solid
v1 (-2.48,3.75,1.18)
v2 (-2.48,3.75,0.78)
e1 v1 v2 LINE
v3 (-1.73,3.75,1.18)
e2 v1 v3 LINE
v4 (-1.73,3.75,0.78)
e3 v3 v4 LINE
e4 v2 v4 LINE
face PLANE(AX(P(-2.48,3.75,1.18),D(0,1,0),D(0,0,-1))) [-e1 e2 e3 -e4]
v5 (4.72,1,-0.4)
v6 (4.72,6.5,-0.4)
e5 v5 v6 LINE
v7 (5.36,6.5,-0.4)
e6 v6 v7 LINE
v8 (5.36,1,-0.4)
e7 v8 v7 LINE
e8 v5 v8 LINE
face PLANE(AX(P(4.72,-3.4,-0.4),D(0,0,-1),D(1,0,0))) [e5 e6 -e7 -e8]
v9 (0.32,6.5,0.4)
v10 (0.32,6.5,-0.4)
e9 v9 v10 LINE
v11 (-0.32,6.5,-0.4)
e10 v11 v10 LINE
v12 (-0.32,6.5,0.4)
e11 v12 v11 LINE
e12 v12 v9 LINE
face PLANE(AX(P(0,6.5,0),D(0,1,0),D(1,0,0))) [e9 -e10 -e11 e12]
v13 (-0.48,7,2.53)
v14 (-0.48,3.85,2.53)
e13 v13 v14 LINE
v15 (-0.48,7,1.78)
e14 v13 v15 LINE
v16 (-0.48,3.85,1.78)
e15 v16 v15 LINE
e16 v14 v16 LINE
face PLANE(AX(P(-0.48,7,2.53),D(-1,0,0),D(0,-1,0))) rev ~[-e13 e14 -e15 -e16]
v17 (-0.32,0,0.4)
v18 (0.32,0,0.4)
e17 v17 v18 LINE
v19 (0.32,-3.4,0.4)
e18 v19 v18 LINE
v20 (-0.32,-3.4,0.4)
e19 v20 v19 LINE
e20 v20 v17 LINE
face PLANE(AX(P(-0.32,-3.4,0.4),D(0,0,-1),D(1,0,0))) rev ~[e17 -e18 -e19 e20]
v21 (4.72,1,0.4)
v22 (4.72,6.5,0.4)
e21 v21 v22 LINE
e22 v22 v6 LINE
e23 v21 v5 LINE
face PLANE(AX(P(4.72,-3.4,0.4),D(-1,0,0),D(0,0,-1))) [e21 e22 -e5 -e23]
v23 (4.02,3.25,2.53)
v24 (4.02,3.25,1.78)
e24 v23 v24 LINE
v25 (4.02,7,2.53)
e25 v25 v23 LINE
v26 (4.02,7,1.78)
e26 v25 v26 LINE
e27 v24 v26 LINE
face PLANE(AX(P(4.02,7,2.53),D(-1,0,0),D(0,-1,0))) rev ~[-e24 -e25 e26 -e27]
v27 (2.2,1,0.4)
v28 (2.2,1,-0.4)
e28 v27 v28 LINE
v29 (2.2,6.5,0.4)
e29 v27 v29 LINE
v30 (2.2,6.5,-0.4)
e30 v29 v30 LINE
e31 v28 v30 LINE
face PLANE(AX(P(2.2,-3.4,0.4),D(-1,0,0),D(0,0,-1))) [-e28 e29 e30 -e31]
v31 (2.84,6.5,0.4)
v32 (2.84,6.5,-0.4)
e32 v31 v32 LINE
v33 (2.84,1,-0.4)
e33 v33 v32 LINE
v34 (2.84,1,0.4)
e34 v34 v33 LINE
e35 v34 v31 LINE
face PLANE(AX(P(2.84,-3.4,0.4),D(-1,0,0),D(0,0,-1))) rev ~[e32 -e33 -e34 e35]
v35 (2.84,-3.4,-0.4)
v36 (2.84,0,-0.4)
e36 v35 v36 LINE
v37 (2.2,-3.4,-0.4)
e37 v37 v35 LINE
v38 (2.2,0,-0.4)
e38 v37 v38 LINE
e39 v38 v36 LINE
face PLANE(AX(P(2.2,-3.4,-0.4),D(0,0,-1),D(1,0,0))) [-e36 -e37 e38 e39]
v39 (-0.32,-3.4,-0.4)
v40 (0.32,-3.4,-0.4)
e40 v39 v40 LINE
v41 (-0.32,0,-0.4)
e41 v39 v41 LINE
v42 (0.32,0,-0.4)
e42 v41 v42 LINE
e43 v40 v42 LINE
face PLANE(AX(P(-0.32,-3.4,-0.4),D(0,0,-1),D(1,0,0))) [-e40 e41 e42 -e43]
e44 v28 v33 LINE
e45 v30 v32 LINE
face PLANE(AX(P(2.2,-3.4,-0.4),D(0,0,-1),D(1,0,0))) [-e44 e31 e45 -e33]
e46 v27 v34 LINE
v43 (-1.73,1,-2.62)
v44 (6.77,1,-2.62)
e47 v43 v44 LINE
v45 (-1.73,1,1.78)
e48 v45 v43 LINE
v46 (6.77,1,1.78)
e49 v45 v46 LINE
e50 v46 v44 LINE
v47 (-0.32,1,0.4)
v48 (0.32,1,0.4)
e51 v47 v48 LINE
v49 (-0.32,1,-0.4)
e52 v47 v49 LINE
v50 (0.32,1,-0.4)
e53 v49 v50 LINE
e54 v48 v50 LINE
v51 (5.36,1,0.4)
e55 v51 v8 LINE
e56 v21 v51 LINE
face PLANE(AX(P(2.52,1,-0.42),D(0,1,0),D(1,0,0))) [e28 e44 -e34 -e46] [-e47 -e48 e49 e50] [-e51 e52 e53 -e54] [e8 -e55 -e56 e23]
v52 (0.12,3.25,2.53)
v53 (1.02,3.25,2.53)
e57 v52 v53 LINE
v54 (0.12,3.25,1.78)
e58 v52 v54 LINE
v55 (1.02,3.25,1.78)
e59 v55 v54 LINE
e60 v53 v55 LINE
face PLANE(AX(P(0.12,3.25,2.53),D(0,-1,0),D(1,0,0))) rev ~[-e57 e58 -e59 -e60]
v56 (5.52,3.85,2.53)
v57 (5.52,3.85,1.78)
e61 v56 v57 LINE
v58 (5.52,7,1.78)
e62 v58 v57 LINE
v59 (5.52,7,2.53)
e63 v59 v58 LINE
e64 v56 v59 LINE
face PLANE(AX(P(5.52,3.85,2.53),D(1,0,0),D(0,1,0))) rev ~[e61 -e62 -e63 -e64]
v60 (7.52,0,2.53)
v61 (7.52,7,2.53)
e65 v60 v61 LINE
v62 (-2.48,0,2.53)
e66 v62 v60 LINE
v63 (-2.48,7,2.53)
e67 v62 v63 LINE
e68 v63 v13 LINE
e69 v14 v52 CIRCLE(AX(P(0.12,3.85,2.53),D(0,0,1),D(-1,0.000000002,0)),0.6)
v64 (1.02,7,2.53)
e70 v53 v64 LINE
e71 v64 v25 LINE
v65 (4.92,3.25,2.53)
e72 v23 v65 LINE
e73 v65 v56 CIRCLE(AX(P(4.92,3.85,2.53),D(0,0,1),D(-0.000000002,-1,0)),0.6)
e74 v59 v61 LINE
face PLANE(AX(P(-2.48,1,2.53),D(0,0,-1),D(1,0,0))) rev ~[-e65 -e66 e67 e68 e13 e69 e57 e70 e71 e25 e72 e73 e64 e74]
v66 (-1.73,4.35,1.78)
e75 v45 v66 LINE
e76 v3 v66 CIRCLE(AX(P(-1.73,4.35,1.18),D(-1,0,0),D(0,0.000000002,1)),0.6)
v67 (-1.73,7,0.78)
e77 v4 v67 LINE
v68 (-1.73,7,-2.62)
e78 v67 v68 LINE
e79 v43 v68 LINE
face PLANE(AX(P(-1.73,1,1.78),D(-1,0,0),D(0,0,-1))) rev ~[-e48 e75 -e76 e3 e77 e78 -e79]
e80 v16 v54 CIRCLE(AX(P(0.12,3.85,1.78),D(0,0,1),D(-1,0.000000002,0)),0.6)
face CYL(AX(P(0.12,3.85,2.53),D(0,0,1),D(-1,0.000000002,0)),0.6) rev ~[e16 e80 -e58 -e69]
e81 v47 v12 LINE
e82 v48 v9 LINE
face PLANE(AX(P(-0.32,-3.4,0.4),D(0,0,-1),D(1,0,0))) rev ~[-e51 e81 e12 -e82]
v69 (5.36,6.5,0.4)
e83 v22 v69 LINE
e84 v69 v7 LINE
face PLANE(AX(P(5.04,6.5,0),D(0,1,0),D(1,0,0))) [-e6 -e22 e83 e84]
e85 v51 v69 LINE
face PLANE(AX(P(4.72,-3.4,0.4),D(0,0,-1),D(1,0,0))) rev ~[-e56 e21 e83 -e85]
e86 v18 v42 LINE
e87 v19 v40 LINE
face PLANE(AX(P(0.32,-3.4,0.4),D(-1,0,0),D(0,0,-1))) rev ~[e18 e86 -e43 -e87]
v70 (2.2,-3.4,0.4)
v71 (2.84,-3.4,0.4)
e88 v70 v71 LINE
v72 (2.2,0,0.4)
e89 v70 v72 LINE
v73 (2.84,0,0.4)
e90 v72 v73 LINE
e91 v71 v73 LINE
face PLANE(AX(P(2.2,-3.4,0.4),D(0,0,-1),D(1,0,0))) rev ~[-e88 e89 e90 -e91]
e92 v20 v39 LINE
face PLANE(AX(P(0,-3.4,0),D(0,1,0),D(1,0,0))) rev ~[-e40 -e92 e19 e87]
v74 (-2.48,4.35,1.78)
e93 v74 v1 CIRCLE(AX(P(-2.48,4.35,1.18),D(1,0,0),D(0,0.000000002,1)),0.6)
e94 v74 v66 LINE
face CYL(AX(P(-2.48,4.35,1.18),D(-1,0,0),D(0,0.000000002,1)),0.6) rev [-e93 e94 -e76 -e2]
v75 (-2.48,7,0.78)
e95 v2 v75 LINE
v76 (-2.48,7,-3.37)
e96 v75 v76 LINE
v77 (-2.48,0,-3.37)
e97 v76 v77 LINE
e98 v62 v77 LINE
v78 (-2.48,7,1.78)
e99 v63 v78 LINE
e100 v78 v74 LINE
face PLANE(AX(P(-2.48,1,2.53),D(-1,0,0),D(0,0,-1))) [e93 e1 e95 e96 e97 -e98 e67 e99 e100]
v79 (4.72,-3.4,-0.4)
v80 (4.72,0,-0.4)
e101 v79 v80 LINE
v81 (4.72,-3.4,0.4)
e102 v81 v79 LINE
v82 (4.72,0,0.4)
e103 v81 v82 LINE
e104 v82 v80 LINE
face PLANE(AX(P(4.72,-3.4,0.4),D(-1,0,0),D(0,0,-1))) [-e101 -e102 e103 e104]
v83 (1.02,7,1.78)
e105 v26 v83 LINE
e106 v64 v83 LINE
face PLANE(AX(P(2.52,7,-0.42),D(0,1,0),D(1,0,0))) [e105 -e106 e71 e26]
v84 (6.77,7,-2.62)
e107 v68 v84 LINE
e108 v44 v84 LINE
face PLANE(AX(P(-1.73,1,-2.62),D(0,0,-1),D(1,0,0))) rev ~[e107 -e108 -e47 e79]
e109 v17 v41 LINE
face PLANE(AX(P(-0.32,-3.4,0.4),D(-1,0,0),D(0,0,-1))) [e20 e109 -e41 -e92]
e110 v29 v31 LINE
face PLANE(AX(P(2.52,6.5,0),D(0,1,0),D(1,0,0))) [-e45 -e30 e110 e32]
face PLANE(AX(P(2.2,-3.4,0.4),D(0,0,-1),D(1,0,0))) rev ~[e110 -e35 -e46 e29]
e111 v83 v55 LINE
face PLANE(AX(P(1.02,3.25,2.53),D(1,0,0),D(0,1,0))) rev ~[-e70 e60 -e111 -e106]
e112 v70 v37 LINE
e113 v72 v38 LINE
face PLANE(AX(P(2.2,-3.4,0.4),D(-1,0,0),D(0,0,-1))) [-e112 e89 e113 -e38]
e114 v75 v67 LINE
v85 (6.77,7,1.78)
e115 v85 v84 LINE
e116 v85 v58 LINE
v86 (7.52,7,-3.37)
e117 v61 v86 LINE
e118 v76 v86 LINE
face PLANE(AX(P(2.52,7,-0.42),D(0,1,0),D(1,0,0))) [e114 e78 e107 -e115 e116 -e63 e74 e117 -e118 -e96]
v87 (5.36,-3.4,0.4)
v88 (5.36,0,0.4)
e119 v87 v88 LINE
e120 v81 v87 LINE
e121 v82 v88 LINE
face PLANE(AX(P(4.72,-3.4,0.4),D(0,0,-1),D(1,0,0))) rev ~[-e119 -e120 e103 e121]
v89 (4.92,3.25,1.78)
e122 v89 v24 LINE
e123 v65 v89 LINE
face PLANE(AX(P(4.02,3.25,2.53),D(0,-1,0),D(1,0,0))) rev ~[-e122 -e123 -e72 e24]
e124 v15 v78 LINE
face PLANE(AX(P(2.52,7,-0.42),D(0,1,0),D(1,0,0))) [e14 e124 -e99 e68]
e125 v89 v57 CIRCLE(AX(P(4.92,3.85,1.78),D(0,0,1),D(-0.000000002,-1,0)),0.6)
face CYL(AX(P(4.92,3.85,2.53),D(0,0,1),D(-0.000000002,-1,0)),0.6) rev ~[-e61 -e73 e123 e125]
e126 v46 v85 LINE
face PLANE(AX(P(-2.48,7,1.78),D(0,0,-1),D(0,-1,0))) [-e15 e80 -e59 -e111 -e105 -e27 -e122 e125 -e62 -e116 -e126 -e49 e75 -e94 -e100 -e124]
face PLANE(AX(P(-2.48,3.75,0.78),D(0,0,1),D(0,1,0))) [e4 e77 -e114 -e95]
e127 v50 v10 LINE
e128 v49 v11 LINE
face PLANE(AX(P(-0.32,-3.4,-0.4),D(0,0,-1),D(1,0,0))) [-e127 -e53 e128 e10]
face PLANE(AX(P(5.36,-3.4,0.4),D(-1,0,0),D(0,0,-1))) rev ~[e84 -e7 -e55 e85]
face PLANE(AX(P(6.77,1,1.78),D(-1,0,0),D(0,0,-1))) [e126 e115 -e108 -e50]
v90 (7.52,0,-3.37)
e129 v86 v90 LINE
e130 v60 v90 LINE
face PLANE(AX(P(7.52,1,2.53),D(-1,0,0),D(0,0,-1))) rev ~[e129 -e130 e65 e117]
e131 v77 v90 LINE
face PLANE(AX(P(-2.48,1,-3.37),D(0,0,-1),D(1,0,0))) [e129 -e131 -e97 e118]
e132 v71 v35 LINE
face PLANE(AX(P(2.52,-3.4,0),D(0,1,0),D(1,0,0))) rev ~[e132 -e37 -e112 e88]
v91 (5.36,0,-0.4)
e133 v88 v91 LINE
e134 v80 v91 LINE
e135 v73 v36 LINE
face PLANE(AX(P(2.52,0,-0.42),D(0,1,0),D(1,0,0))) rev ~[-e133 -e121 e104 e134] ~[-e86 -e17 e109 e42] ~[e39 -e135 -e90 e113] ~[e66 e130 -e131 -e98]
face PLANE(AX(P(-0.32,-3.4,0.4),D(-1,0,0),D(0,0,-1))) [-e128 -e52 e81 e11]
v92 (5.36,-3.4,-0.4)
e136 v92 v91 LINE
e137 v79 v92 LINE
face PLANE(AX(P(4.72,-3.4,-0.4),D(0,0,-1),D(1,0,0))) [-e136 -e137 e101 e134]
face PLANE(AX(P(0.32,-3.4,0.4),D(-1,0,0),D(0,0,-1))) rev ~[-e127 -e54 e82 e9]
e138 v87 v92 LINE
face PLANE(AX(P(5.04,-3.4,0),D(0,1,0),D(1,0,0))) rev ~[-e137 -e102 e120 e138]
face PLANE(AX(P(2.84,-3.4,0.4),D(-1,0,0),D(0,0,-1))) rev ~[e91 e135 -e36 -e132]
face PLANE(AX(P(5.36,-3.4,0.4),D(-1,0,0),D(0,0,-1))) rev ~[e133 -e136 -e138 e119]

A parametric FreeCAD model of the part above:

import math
import FreeCAD as App
import Part
import Sketcher
Q = App.Units.Quantity

doc = App.newDocument("Part")
body = doc.addObject("PartDesign::Body", "Body")

sketch1 = body.newObject("Sketcher::SketchObject", "Sketch")
sketch1.AttachmentSupport = (doc.getObject("XZ_Plane"), [""])
sketch1.MapMode = "FlatFace"
sketch1.addGeometry([
    Part.LineSegment(App.Vector(-2.48, -3.37, 0), App.Vector(-2.48, 2.53, 0)),
    Part.LineSegment(App.Vector(-2.48, 2.53, 0), App.Vector(7.52, 2.53, 0)),
    Part.LineSegment(App.Vector(7.52, 2.53, 0), App.Vector(7.52, -3.37, 0)),
    Part.LineSegment(App.Vector(7.52, -3.37, 0), App.Vector(-2.48, -3.37, 0)),
    Part.LineSegment(App.Vector(0.32, 0.4, 0), App.Vector(-0.32, 0.4, 0)),
    Part.LineSegment(App.Vector(-0.32, 0.4, 0), App.Vector(-0.32, -0.4, 0)),
    Part.LineSegment(App.Vector(-0.32, -0.4, 0), App.Vector(0.32, -0.4, 0)),
    Part.LineSegment(App.Vector(0.32, -0.4, 0), App.Vector(0.32, 0.4, 0)),
    Part.LineSegment(App.Vector(2.84, 0.4, 0), App.Vector(2.2, 0.4, 0)),
    Part.LineSegment(App.Vector(2.2, 0.4, 0), App.Vector(2.2, -0.4, 0)),
    Part.LineSegment(App.Vector(2.2, -0.4, 0), App.Vector(2.84, -0.4, 0)),
    Part.LineSegment(App.Vector(2.84, -0.4, 0), App.Vector(2.84, 0.4, 0)),
    Part.LineSegment(App.Vector(5.36, 0.4, 0), App.Vector(4.72, 0.4, 0)),
    Part.LineSegment(App.Vector(4.72, 0.4, 0), App.Vector(4.72, -0.4, 0)),
    Part.LineSegment(App.Vector(4.72, -0.4, 0), App.Vector(5.36, -0.4, 0)),
    Part.LineSegment(App.Vector(5.36, -0.4, 0), App.Vector(5.36, 0.4, 0)),
], False)
sketch1.addConstraint([
    Sketcher.Constraint("Coincident", 0, 2, 1, 1),
    Sketcher.Constraint("Coincident", 1, 2, 2, 1),
    Sketcher.Constraint("Coincident", 2, 2, 3, 1),
    Sketcher.Constraint("Coincident", 3, 2, 0, 1),
    Sketcher.Constraint("Coincident", 4, 2, 5, 1),
    Sketcher.Constraint("Coincident", 5, 2, 6, 1),
    Sketcher.Constraint("Coincident", 6, 2, 7, 1),
    Sketcher.Constraint("Coincident", 7, 2, 4, 1),
    Sketcher.Constraint("Coincident", 8, 2, 9, 1),
    Sketcher.Constraint("Coincident", 9, 2, 10, 1),
    Sketcher.Constraint("Coincident", 10, 2, 11, 1),
    Sketcher.Constraint("Coincident", 11, 2, 8, 1),
    Sketcher.Constraint("Coincident", 12, 2, 13, 1),
    Sketcher.Constraint("Coincident", 13, 2, 14, 1),
    Sketcher.Constraint("Coincident", 14, 2, 15, 1),
    Sketcher.Constraint("Coincident", 15, 2, 12, 1),
    Sketcher.Constraint("Vertical", 0),
    Sketcher.Constraint("Horizontal", 1),
    Sketcher.Constraint("Vertical", 2),
    Sketcher.Constraint("Horizontal", 3),
    Sketcher.Constraint("Horizontal", 4),
    Sketcher.Constraint("Vertical", 5),
    Sketcher.Constraint("Horizontal", 6),
    Sketcher.Constraint("Vertical", 7),
    Sketcher.Constraint("Horizontal", 8),
    Sketcher.Constraint("Vertical", 9),
    Sketcher.Constraint("Horizontal", 10),
    Sketcher.Constraint("Vertical", 11),
    Sketcher.Constraint("Horizontal", 12),
    Sketcher.Constraint("Vertical", 13),
    Sketcher.Constraint("Horizontal", 14),
    Sketcher.Constraint("Vertical", 15),
    Sketcher.Constraint("Symmetric", 4, 2, 6, 2, -1, 1),
    Sketcher.Constraint("Horizontal", 7, 2, 8, 2),
    Sketcher.Constraint("Horizontal", 6, 2, 9, 2),
    Sketcher.Constraint("Horizontal", 11, 2, 12, 2),
    Sketcher.Constraint("Horizontal", 10, 2, 13, 2),
    Sketcher.Constraint("Equal", 6, 8),
    Sketcher.Constraint("Equal", 10, 12),
    Sketcher.Constraint("DistanceX", 1, 1, 1, 2, Q("10 mm")),
    Sketcher.Constraint("DistanceY", 0, 1, 0, 2, Q("5.9 mm")),
    Sketcher.Constraint("DistanceY", 5, 2, 5, 1, Q("0.8 mm")),
    Sketcher.Constraint("DistanceX", 4, 2, 4, 1, Q("0.64 mm")),
    Sketcher.Constraint("DistanceX", -1, 1, 8, 2, Q("2.2 mm")),
    Sketcher.Constraint("DistanceX", 0, 2, 6, 2, Q("2.8 mm")),
    Sketcher.Constraint("DistanceX", 12, 2, 1, 2, Q("2.8 mm")),
    Sketcher.Constraint("DistanceY", -1, 1, 0, 2, Q("2.53 mm")),
])
pad1 = body.newObject("PartDesign::Pad", "Pad")
pad1.Profile = sketch1
pad1.Length = 1
pad1.Reversed = True

sketch2 = body.newObject("Sketcher::SketchObject", "Sketch001")
sketch2.AttachmentSupport = (doc.getObject("XZ_Plane"), [""])
sketch2.MapMode = "FlatFace"
sketch2.AttachmentOffset = App.Placement(App.Vector(0, 0, -1), App.Rotation())
sketch2.addGeometry([
    Part.LineSegment(App.Vector(-2.48, -3.37, 0), App.Vector(-2.48, 2.53, 0)),
    Part.LineSegment(App.Vector(-2.48, 2.53, 0), App.Vector(7.52, 2.53, 0)),
    Part.LineSegment(App.Vector(7.52, 2.53, 0), App.Vector(7.52, -3.37, 0)),
    Part.LineSegment(App.Vector(7.52, -3.37, 0), App.Vector(-2.48, -3.37, 0)),
    Part.LineSegment(App.Vector(6.77, 1.78, 0), App.Vector(-1.73, 1.78, 0)),
    Part.LineSegment(App.Vector(-1.73, 1.78, 0), App.Vector(-1.73, -2.62, 0)),
    Part.LineSegment(App.Vector(-1.73, -2.62, 0), App.Vector(6.77, -2.62, 0)),
    Part.LineSegment(App.Vector(6.77, -2.62, 0), App.Vector(6.77, 1.78, 0)),
], False)
sketch2.addConstraint([
    Sketcher.Constraint("Coincident", 0, 2, 1, 1),
    Sketcher.Constraint("Coincident", 1, 2, 2, 1),
    Sketcher.Constraint("Coincident", 2, 2, 3, 1),
    Sketcher.Constraint("Coincident", 3, 2, 0, 1),
    Sketcher.Constraint("Coincident", 4, 2, 5, 1),
    Sketcher.Constraint("Coincident", 5, 2, 6, 1),
    Sketcher.Constraint("Coincident", 6, 2, 7, 1),
    Sketcher.Constraint("Coincident", 7, 2, 4, 1),
    Sketcher.Constraint("Vertical", 0),
    Sketcher.Constraint("Horizontal", 1),
    Sketcher.Constraint("Vertical", 2),
    Sketcher.Constraint("Horizontal", 3),
    Sketcher.Constraint("Horizontal", 4),
    Sketcher.Constraint("Vertical", 5),
    Sketcher.Constraint("Horizontal", 6),
    Sketcher.Constraint("Vertical", 7),
    Sketcher.Constraint("DistanceX", 1, 1, 1, 2, Q("10 mm")),
    Sketcher.Constraint("DistanceX", 4, 2, 4, 1, Q("8.5 mm")),
    Sketcher.Constraint("DistanceY", 0, 1, 0, 2, Q("5.9 mm")),
    Sketcher.Constraint("DistanceY", 5, 2, 5, 1, Q("4.4 mm")),
    Sketcher.Constraint("DistanceX", 0, 2, -1, 1, Q("2.48 mm")),
    Sketcher.Constraint("DistanceY", -1, 1, 0, 2, Q("2.53 mm")),
    Sketcher.Constraint("DistanceX", 4, 2, -1, 1, Q("1.73 mm")),
    Sketcher.Constraint("DistanceY", -1, 1, 4, 2, Q("1.78 mm")),
])
pad2 = body.newObject("PartDesign::Pad", "Pad001")
pad2.Profile = sketch2
pad2.Length = 6
pad2.Reversed = True

sketch3 = body.newObject("Sketcher::SketchObject", "Sketch002")
sketch3.AttachmentSupport = (doc.getObject("YZ_Plane"), [""])
sketch3.MapMode = "FlatFace"
sketch3.AttachmentOffset = App.Placement(App.Vector(0, 0, -2.48), App.Rotation())
sketch3.addGeometry([
    Part.LineSegment(App.Vector(4.35, 1.78, 0), App.Vector(7, 1.78, 0)),
    Part.LineSegment(App.Vector(7, 1.78, 0), App.Vector(7, 0.78, 0)),
    Part.LineSegment(App.Vector(7, 0.78, 0), App.Vector(3.75, 0.78, 0)),
    Part.LineSegment(App.Vector(3.75, 0.78, 0), App.Vector(3.75, 1.18, 0)),
    Part.ArcOfCircle(Part.Circle(App.Vector(4.35, 1.18, 0), App.Vector(0, 0, 1), 0.6), math.radians(90), math.radians(180)),
], False)
sketch3.addConstraint([
    Sketcher.Constraint("Coincident", 0, 2, 1, 1),
    Sketcher.Constraint("Coincident", 1, 2, 2, 1),
    Sketcher.Constraint("Coincident", 2, 2, 3, 1),
    Sketcher.Constraint("Tangent", 3, 2, 4, 2),
    Sketcher.Constraint("Tangent", 4, 1, 0, 1),
    Sketcher.Constraint("Horizontal", 0),
    Sketcher.Constraint("Vertical", 1),
    Sketcher.Constraint("Horizontal", 2),
    Sketcher.Constraint("Vertical", 3),
    Sketcher.Constraint("Radius", 4, Q("0.6 mm")),
    Sketcher.Constraint("DistanceY", 1, 2, 1, 1, Q("1 mm")),
    Sketcher.Constraint("DistanceX", -1, 1, 0, 2, Q("7 mm")),
    Sketcher.Constraint("DistanceX", 0, 1, 0, 2, Q("2.65 mm")),
    Sketcher.Constraint("DistanceY", -1, 1, 4, 3, Q("1.18 mm")),
])
pocket1 = body.newObject("PartDesign::Pocket", "Pocket")
pocket1.Profile = sketch3
pocket1.Length = 9
pocket1.Reversed = True

sketch4 = body.newObject("Sketcher::SketchObject", "Sketch003")
sketch4.AttachmentSupport = (doc.getObject("XY_Plane"), [""])
sketch4.MapMode = "FlatFace"
sketch4.AttachmentOffset = App.Placement(App.Vector(0, 0, 2.53), App.Rotation())
sketch4.addGeometry([
    Part.LineSegment(App.Vector(-0.48, 7, 0), App.Vector(-0.48, 3.85, 0)),
    Part.ArcOfCircle(Part.Circle(App.Vector(0.12, 3.85, 0), App.Vector(0, 0, 1), 0.6), math.radians(180), math.radians(270)),
    Part.LineSegment(App.Vector(0.12, 3.25, 0), App.Vector(1.02, 3.25, 0)),
    Part.LineSegment(App.Vector(1.02, 3.25, 0), App.Vector(1.02, 7, 0)),
    Part.LineSegment(App.Vector(1.02, 7, 0), App.Vector(-0.48, 7, 0)),
    Part.LineSegment(App.Vector(5.52, 7, 0), App.Vector(4.02, 7, 0)),
    Part.LineSegment(App.Vector(4.02, 7, 0), App.Vector(4.02, 3.25, 0)),
    Part.LineSegment(App.Vector(4.02, 3.25, 0), App.Vector(4.92, 3.25, 0)),
    Part.ArcOfCircle(Part.Circle(App.Vector(4.92, 3.85, 0), App.Vector(0, 0, 1), 0.6), math.radians(-90), math.radians(0)),
    Part.LineSegment(App.Vector(5.52, 3.85, 0), App.Vector(5.52, 7, 0)),
], False)
sketch4.addConstraint([
    Sketcher.Constraint("Tangent", 0, 2, 1, 1),
    Sketcher.Constraint("Tangent", 1, 2, 2, 1),
    Sketcher.Constraint("Coincident", 2, 2, 3, 1),
    Sketcher.Constraint("Coincident", 3, 2, 4, 1),
    Sketcher.Constraint("Coincident", 4, 2, 0, 1),
    Sketcher.Constraint("Coincident", 5, 2, 6, 1),
    Sketcher.Constraint("Coincident", 6, 2, 7, 1),
    Sketcher.Constraint("Tangent", 7, 2, 8, 1),
    Sketcher.Constraint("Tangent", 8, 2, 9, 1),
    Sketcher.Constraint("Coincident", 9, 2, 5, 1),
    Sketcher.Constraint("Vertical", 0),
    Sketcher.Constraint("Horizontal", 2),
    Sketcher.Constraint("Vertical", 3),
    Sketcher.Constraint("Horizontal", 4),
    Sketcher.Constraint("Horizontal", 5),
    Sketcher.Constraint("Vertical", 6),
    Sketcher.Constraint("Horizontal", 7),
    Sketcher.Constraint("Vertical", 9),
    Sketcher.Constraint("Equal", 1, 8),
    Sketcher.Constraint("Horizontal", 1, 3, 8, 3),
    Sketcher.Constraint("Horizontal", 4, 2, 5, 2),
    Sketcher.Constraint("Equal", 4, 5),
    Sketcher.Constraint("Radius", 1, Q("0.6 mm")),
    Sketcher.Constraint("DistanceX", 2, 1, 2, 2, Q("0.9 mm")),
    Sketcher.Constraint("DistanceY", -1, 1, 3, 2, Q("7 mm")),
    Sketcher.Constraint("DistanceX", 3, 2, 5, 2, Q("3 mm")),
    Sketcher.Constraint("DistanceY", 0, 2, 0, 1, Q("3.15 mm")),
    Sketcher.Constraint("DistanceX", -1, 1, 1, 3, Q("0.12 mm")),
])
pocket2 = body.newObject("PartDesign::Pocket", "Pocket001")
pocket2.Profile = sketch4
pocket2.Length = 2

sketch5 = body.newObject("Sketcher::SketchObject", "Sketch004")
sketch5.AttachmentSupport = (doc.getObject("XZ_Plane"), [""])
sketch5.MapMode = "FlatFace"
sketch5.addGeometry([
    Part.LineSegment(App.Vector(4.72, -0.4, 0), App.Vector(4.72, 0.4, 0)),
    Part.LineSegment(App.Vector(4.72, 0.4, 0), App.Vector(5.36, 0.4, 0)),
    Part.LineSegment(App.Vector(5.36, 0.4, 0), App.Vector(5.36, -0.4, 0)),
    Part.LineSegment(App.Vector(5.36, -0.4, 0), App.Vector(4.72, -0.4, 0)),
    Part.LineSegment(App.Vector(-0.32, -0.4, 0), App.Vector(-0.32, 0.4, 0)),
    Part.LineSegment(App.Vector(-0.32, 0.4, 0), App.Vector(0.32, 0.4, 0)),
    Part.LineSegment(App.Vector(0.32, 0.4, 0), App.Vector(0.32, -0.4, 0)),
    Part.LineSegment(App.Vector(0.32, -0.4, 0), App.Vector(-0.32, -0.4, 0)),
    Part.LineSegment(App.Vector(2.2, -0.4, 0), App.Vector(2.2, 0.4, 0)),
    Part.LineSegment(App.Vector(2.2, 0.4, 0), App.Vector(2.84, 0.4, 0)),
    Part.LineSegment(App.Vector(2.84, 0.4, 0), App.Vector(2.84, -0.4, 0)),
    Part.LineSegment(App.Vector(2.84, -0.4, 0), App.Vector(2.2, -0.4, 0)),
], False)
sketch5.addConstraint([
    Sketcher.Constraint("Coincident", 0, 2, 1, 1),
    Sketcher.Constraint("Coincident", 1, 2, 2, 1),
    Sketcher.Constraint("Coincident", 2, 2, 3, 1),
    Sketcher.Constraint("Coincident", 3, 2, 0, 1),
    Sketcher.Constraint("Coincident", 4, 2, 5, 1),
    Sketcher.Constraint("Coincident", 5, 2, 6, 1),
    Sketcher.Constraint("Coincident", 6, 2, 7, 1),
    Sketcher.Constraint("Coincident", 7, 2, 4, 1),
    Sketcher.Constraint("Coincident", 8, 2, 9, 1),
    Sketcher.Constraint("Coincident", 9, 2, 10, 1),
    Sketcher.Constraint("Coincident", 10, 2, 11, 1),
    Sketcher.Constraint("Coincident", 11, 2, 8, 1),
    Sketcher.Constraint("Vertical", 0),
    Sketcher.Constraint("Horizontal", 1),
    Sketcher.Constraint("Vertical", 2),
    Sketcher.Constraint("Horizontal", 3),
    Sketcher.Constraint("Vertical", 4),
    Sketcher.Constraint("Horizontal", 5),
    Sketcher.Constraint("Vertical", 6),
    Sketcher.Constraint("Horizontal", 7),
    Sketcher.Constraint("Vertical", 8),
    Sketcher.Constraint("Horizontal", 9),
    Sketcher.Constraint("Vertical", 10),
    Sketcher.Constraint("Horizontal", 11),
    Sketcher.Constraint("Symmetric", 4, 2, 6, 2, -1, 1),
    Sketcher.Constraint("Horizontal", 1, 2, 4, 2),
    Sketcher.Constraint("Horizontal", 3, 2, 6, 2),
    Sketcher.Constraint("Horizontal", 5, 2, 8, 2),
    Sketcher.Constraint("Horizontal", 7, 2, 10, 2),
    Sketcher.Constraint("Equal", 3, 5),
    Sketcher.Constraint("Equal", 7, 9),
    Sketcher.Constraint("DistanceY", 0, 1, 0, 2, Q("0.8 mm")),
    Sketcher.Constraint("DistanceX", 1, 1, 1, 2, Q("0.64 mm")),
    Sketcher.Constraint("DistanceX", -1, 1, 8, 2, Q("2.2 mm")),
    Sketcher.Constraint("DistanceX", 5, 2, 0, 2, Q("4.4 mm")),
])
pad3 = body.newObject("PartDesign::Pad", "Pad002")
pad3.Profile = sketch5
pad3.Type = "TwoLengths"
pad3.Length = 6.5
pad3.Length2 = 3.4
pad3.Reversed = True

doc.recompute()
